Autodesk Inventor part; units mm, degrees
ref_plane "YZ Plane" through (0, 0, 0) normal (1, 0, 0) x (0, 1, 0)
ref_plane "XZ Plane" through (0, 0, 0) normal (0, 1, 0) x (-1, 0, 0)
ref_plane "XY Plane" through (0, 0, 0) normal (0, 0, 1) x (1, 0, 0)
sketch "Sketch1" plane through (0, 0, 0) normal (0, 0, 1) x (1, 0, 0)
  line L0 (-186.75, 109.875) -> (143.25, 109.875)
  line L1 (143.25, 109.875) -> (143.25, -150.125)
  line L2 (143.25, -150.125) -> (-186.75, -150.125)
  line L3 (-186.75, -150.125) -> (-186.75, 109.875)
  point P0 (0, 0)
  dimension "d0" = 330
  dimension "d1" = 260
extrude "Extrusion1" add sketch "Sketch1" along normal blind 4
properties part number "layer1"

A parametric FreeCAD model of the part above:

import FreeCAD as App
import Part
import Sketcher
Q = App.Units.Quantity

doc = App.newDocument("Part")
body = doc.addObject("PartDesign::Body", "Body")

# Sketch on XY plane
sketch1 = body.newObject("Sketcher::SketchObject", "Sketch")
sketch1.AttachmentSupport = (doc.getObject("XY_Plane"), [""])
sketch1.MapMode = "FlatFace"
sketch1.addGeometry([
    Part.LineSegment(App.Vector(143.25, 109.875, 0), App.Vector(-186.75, 109.875, 0)),
    Part.LineSegment(App.Vector(-186.75, 109.875, 0), App.Vector(-186.75, -150.125, 0)),
    Part.LineSegment(App.Vector(-186.75, -150.125, 0), App.Vector(143.25, -150.125, 0)),
    Part.LineSegment(App.Vector(143.25, -150.125, 0), App.Vector(143.25, 109.875, 0)),
], False)
sketch1.addConstraint([
    Sketcher.Constraint("Coincident", 0, 2, 1, 1),
    Sketcher.Constraint("Coincident", 1, 2, 2, 1),
    Sketcher.Constraint("Coincident", 2, 2, 3, 1),
    Sketcher.Constraint("Coincident", 3, 2, 0, 1),
    Sketcher.Constraint("Horizontal", 0),
    Sketcher.Constraint("Vertical", 1),
    Sketcher.Constraint("Horizontal", 2),
    Sketcher.Constraint("Vertical", 3),
    Sketcher.Constraint("DistanceX", 0, 2, 0, 1, Q("330 mm")),
    Sketcher.Constraint("DistanceY", 1, 2, 1, 1, Q("260 mm")),
    Sketcher.Constraint("DistanceX", 0, 2, -1, 1, Q("186.75 mm")),
    Sketcher.Constraint("DistanceY", -1, 1, 0, 2, Q("109.875 mm")),
])
pad1 = body.newObject("PartDesign::Pad", "Pad")
pad1.Profile = sketch1
pad1.Length = 4

doc.recompute()
